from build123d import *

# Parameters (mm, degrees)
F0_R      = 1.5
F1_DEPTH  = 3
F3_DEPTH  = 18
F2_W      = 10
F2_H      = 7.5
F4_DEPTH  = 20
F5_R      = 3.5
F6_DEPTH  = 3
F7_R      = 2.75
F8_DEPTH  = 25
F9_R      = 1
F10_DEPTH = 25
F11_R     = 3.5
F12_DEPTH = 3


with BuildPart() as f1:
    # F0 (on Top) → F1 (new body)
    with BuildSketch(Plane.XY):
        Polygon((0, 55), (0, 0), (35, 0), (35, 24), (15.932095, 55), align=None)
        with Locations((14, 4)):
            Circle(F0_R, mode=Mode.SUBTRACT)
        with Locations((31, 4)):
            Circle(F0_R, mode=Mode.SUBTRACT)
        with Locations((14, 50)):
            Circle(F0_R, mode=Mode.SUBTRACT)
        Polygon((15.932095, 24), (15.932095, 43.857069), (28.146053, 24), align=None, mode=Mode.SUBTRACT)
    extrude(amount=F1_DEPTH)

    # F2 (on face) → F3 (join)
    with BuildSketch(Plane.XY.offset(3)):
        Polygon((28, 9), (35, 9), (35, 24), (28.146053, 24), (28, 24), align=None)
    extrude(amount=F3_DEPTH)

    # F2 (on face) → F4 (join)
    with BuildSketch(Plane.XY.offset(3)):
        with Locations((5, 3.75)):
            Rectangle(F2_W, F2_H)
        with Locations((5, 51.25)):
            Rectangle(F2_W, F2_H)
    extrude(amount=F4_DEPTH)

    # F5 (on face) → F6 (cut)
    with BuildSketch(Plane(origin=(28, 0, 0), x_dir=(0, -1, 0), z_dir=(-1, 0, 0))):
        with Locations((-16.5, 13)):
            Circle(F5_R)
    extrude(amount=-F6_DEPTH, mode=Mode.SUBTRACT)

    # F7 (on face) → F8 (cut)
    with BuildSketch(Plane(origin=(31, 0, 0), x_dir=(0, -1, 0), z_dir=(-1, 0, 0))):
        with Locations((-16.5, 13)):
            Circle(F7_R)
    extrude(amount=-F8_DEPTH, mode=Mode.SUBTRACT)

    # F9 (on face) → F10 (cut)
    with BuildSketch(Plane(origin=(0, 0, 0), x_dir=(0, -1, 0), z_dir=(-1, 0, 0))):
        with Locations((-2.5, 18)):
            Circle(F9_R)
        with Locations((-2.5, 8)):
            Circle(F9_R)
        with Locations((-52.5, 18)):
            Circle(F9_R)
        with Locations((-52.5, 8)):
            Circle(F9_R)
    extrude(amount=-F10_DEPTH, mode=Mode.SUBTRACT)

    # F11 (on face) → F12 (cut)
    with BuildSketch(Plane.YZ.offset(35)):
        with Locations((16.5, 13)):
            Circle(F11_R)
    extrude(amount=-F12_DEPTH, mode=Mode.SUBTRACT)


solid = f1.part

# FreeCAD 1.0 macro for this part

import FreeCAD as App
import Part
import Sketcher
from FreeCAD import Vector

doc = App.newDocument("Part")
body = doc.addObject("PartDesign::Body", "Body")

# Sketch on XY plane
sketch1 = doc.addObject("Sketcher::SketchObject", "Sketch")
body.addObject(sketch1)
sketch1.AttachmentSupport = (doc.XY_Plane, [""])
sketch1.MapMode = "FlatFace"
sketch1.addGeometry([
    Part.LineSegment(Vector(0, 55, 0), Vector(0, 0, 0)),  # 0
    Part.LineSegment(Vector(0, 0, 0), Vector(35, 0, 0)),  # 1
    Part.LineSegment(Vector(35, 0, 0), Vector(35, 24, 0)),  # 2
    Part.LineSegment(Vector(35, 24, 0), Vector(15.932095, 55, 0)),  # 3
    Part.LineSegment(Vector(15.932095, 55, 0), Vector(0, 55, 0)),  # 4
    Part.Circle(Vector(14, 4, 0), Vector(0, 0, 1), 1.5),  # 5
    Part.Circle(Vector(31, 4, 0), Vector(0, 0, 1), 1.5),  # 6
    Part.LineSegment(Vector(28.146053, 24, 0), Vector(15.932095, 24, 0)),  # 7
    Part.LineSegment(Vector(15.932095, 24, 0), Vector(15.932095, 43.857069, 0)),  # 8
    Part.LineSegment(Vector(15.932095, 43.857069, 0), Vector(28.146053, 24, 0)),  # 9
    Part.Circle(Vector(14, 50, 0), Vector(0, 0, 1), 1.5),  # 10
], False)
sketch1.addConstraint([
    Sketcher.Constraint("Coincident", 0, 2, 1, 1),
    Sketcher.Constraint("Coincident", 1, 2, 2, 1),
    Sketcher.Constraint("Coincident", 2, 2, 3, 1),
    Sketcher.Constraint("Coincident", 3, 2, 4, 1),
    Sketcher.Constraint("Coincident", 4, 2, 0, 1),
    Sketcher.Constraint("Coincident", 7, 2, 8, 1),
    Sketcher.Constraint("Coincident", 8, 2, 9, 1),
    Sketcher.Constraint("Coincident", 9, 2, 7, 1),
    Sketcher.Constraint("Vertical", 0),
    Sketcher.Constraint("Horizontal", 1),
    Sketcher.Constraint("Vertical", 2),
    Sketcher.Constraint("Horizontal", 4),
    Sketcher.Constraint("Horizontal", 7),
    Sketcher.Constraint("Vertical", 8),
    Sketcher.Constraint("Coincident", 0, 2, -1, 1),
    Sketcher.Constraint("Equal", 5, 6),
    Sketcher.Constraint("Equal", 6, 10),
    Sketcher.Constraint("Parallel", 3, 9),
    Sketcher.Constraint("Horizontal", 5, 3, 6, 3),
    Sketcher.Constraint("Horizontal", 2, 2, 7, 2),
    Sketcher.Constraint("Vertical", 5, 3, 10, 3),
    Sketcher.Constraint("Vertical", 3, 2, 7, 2),
    Sketcher.Constraint("Diameter", 5, 3.0),
    Sketcher.Constraint("DistanceX", 1, 1, 1, 2, 35.0),
    Sketcher.Constraint("DistanceY", 0, 2, 0, 1, 55.0),
    Sketcher.Constraint("DistanceY", 2, 1, 2, 2, 24.0),
    Sketcher.Constraint("DistanceX", -1, 1, 5, 3, 14.0),
    Sketcher.Constraint("DistanceY", -1, 1, 5, 3, 4.0),
    Sketcher.Constraint("DistanceX", -1, 1, 6, 3, 31.0),
    Sketcher.Constraint("DistanceY", -1, 1, 10, 3, 50.0),
    Sketcher.Constraint("DistanceY", 8, 1, 8, 2, 19.857069),
    Sketcher.Constraint("Distance", 3, 36.394849),
])
pad1 = doc.addObject("PartDesign::Pad", "Pad")
body.addObject(pad1)
pad1.Profile = sketch1
pad1.Length = 3

# Sketch on XY plane
sketch2 = doc.addObject("Sketcher::SketchObject", "Sketch001")
body.addObject(sketch2)
sketch2.AttachmentSupport = (doc.XY_Plane, [""])
sketch2.MapMode = "FlatFace"
sketch2.AttachmentOffset = App.Placement(Vector(0, 0, 3), App.Rotation())
sketch2.addGeometry([
    Part.LineSegment(Vector(28, 9, 0), Vector(35, 9, 0)),
    Part.LineSegment(Vector(35, 9, 0), Vector(35, 24, 0)),
    Part.LineSegment(Vector(35, 24, 0), Vector(28, 24, 0)),
    Part.LineSegment(Vector(28, 24, 0), Vector(28, 9, 0)),
], False)
sketch2.addConstraint([
    Sketcher.Constraint("Coincident", 0, 2, 1, 1),
    Sketcher.Constraint("Coincident", 1, 2, 2, 1),
    Sketcher.Constraint("Coincident", 2, 2, 3, 1),
    Sketcher.Constraint("Coincident", 3, 2, 0, 1),
    Sketcher.Constraint("Horizontal", 0),
    Sketcher.Constraint("Vertical", 1),
    Sketcher.Constraint("Horizontal", 2),
    Sketcher.Constraint("Vertical", 3),
    Sketcher.Constraint("DistanceX", 0, 1, 0, 2, 7.0),
    Sketcher.Constraint("DistanceY", 1, 1, 1, 2, 15.0),
    Sketcher.Constraint("DistanceX", -1, 1, 0, 2, 35.0),
    Sketcher.Constraint("DistanceY", -1, 1, 0, 2, 9.0),
])
pad2 = doc.addObject("PartDesign::Pad", "Pad001")
body.addObject(pad2)
pad2.Profile = sketch2
pad2.Length = 18

# Sketch on XY plane
sketch3 = doc.addObject("Sketcher::SketchObject", "Sketch002")
body.addObject(sketch3)
sketch3.AttachmentSupport = (doc.XY_Plane, [""])
sketch3.MapMode = "FlatFace"
sketch3.AttachmentOffset = App.Placement(Vector(0, 0, 3), App.Rotation())
sketch3.addGeometry([
    Part.LineSegment(Vector(0, 7.5, 0), Vector(0, 0, 0)),  # 0
    Part.LineSegment(Vector(0, 0, 0), Vector(10, 0, 0)),  # 1
    Part.LineSegment(Vector(10, 0, 0), Vector(10, 7.5, 0)),  # 2
    Part.LineSegment(Vector(10, 7.5, 0), Vector(0, 7.5, 0)),  # 3
    Part.LineSegment(Vector(0, 55, 0), Vector(0, 47.5, 0)),  # 4
    Part.LineSegment(Vector(0, 47.5, 0), Vector(10, 47.5, 0)),  # 5
    Part.LineSegment(Vector(10, 47.5, 0), Vector(10, 55, 0)),  # 6
    Part.LineSegment(Vector(10, 55, 0), Vector(0, 55, 0)),  # 7
], False)
sketch3.addConstraint([
    Sketcher.Constraint("Coincident", 0, 2, 1, 1),
    Sketcher.Constraint("Coincident", 1, 2, 2, 1),
    Sketcher.Constraint("Coincident", 2, 2, 3, 1),
    Sketcher.Constraint("Coincident", 3, 2, 0, 1),
    Sketcher.Constraint("Coincident", 4, 2, 5, 1),
    Sketcher.Constraint("Coincident", 5, 2, 6, 1),
    Sketcher.Constraint("Coincident", 6, 2, 7, 1),
    Sketcher.Constraint("Coincident", 7, 2, 4, 1),
    Sketcher.Constraint("Vertical", 0),
    Sketcher.Constraint("Horizontal", 1),
    Sketcher.Constraint("Vertical", 2),
    Sketcher.Constraint("Horizontal", 3),
    Sketcher.Constraint("Vertical", 4),
    Sketcher.Constraint("Horizontal", 5),
    Sketcher.Constraint("Vertical", 6),
    Sketcher.Constraint("Horizontal", 7),
    Sketcher.Constraint("Coincident", 0, 2, -1, 1),
    Sketcher.Constraint("PointOnObject", 4, 2, -2),
    Sketcher.Constraint("Vertical", 2, 2, 5, 2),
    Sketcher.Constraint("Equal", 2, 4),
    Sketcher.Constraint("DistanceX", 1, 1, 1, 2, 10.0),
    Sketcher.Constraint("DistanceY", 0, 2, 0, 1, 7.5),
    Sketcher.Constraint("DistanceY", -1, 1, 6, 2, 55.0),
])
pad3 = doc.addObject("PartDesign::Pad", "Pad002")
body.addObject(pad3)
pad3.Profile = sketch3
pad3.Length = 20

# Sketch on YZ plane
sketch4 = doc.addObject("Sketcher::SketchObject", "Sketch003")
body.addObject(sketch4)
sketch4.AttachmentSupport = (doc.YZ_Plane, [""])
sketch4.MapMode = "FlatFace"
sketch4.AttachmentOffset = App.Placement(Vector(0, 0, 28), App.Rotation())
sketch4.addGeometry(Part.Circle(Vector(16.5, 13, 0), Vector(0, 0, 1), 3.5), False)
sketch4.addConstraint([
    Sketcher.Constraint("Diameter", 0, 7.0),
    Sketcher.Constraint("DistanceY", -1, 1, 0, 3, 13.0),
    Sketcher.Constraint("DistanceX", -1, 1, 0, 3, 16.5),
])
pocket1 = doc.addObject("PartDesign::Pocket", "Pocket")
body.addObject(pocket1)
pocket1.Profile = sketch4
pocket1.Length = 3
pocket1.Reversed = True

# Sketch on YZ plane
sketch5 = doc.addObject("Sketcher::SketchObject", "Sketch004")
body.addObject(sketch5)
sketch5.AttachmentSupport = (doc.YZ_Plane, [""])
sketch5.MapMode = "FlatFace"
sketch5.AttachmentOffset = App.Placement(Vector(0, 0, 31), App.Rotation())
sketch5.addGeometry(Part.Circle(Vector(16.5, 13, 0), Vector(0, 0, 1), 2.75), False)
sketch5.addConstraint([
    Sketcher.Constraint("Diameter", 0, 5.5),
    Sketcher.Constraint("DistanceY", -1, 1, 0, 3, 13.0),
    Sketcher.Constraint("DistanceX", -1, 1, 0, 3, 16.5),
])
pocket2 = doc.addObject("PartDesign::Pocket", "Pocket001")
body.addObject(pocket2)
pocket2.Profile = sketch5
pocket2.Length = 25
pocket2.Reversed = True

# Sketch on YZ plane
sketch6 = doc.addObject("Sketcher::SketchObject", "Sketch005")
body.addObject(sketch6)
sketch6.AttachmentSupport = (doc.YZ_Plane, [""])
sketch6.MapMode = "FlatFace"
sketch6.addGeometry([
    Part.Circle(Vector(2.5, 18, 0), Vector(0, 0, 1), 1),
    Part.Circle(Vector(2.5, 8, 0), Vector(0, 0, 1), 1),
    Part.Circle(Vector(52.5, 18, 0), Vector(0, 0, 1), 1),
    Part.Circle(Vector(52.5, 8, 0), Vector(0, 0, 1), 1),
], False)
sketch6.addConstraint([
    Sketcher.Constraint("Equal", 0, 1),
    Sketcher.Constraint("Equal", 1, 2),
    Sketcher.Constraint("Equal", 2, 3),
    Sketcher.Constraint("Horizontal", 0, 3, 2, 3),
    Sketcher.Constraint("Horizontal", 1, 3, 3, 3),
    Sketcher.Constraint("Vertical", 0, 3, 1, 3),
    Sketcher.Constraint("Vertical", 2, 3, 3, 3),
    Sketcher.Constraint("Diameter", 0, 2.0),
    Sketcher.Constraint("DistanceY", -1, 1, 0, 3, 18.0),
    Sketcher.Constraint("DistanceY", -1, 1, 1, 3, 8.0),
    Sketcher.Constraint("DistanceX", 0, 3, 2, 3, 50.0),
    Sketcher.Constraint("DistanceX", -1, 1, 0, 3, 2.5),
])
pocket3 = doc.addObject("PartDesign::Pocket", "Pocket002")
body.addObject(pocket3)
pocket3.Profile = sketch6
pocket3.Length = 25
pocket3.Reversed = True

# Sketch on YZ plane
sketch7 = doc.addObject("Sketcher::SketchObject", "Sketch006")
body.addObject(sketch7)
sketch7.AttachmentSupport = (doc.YZ_Plane, [""])
sketch7.MapMode = "FlatFace"
sketch7.AttachmentOffset = App.Placement(Vector(0, 0, 35), App.Rotation())
sketch7.addGeometry(Part.Circle(Vector(16.5, 13, 0), Vector(0, 0, 1), 3.5), False)
sketch7.addConstraint([
    Sketcher.Constraint("Diameter", 0, 7.0),
    Sketcher.Constraint("DistanceY", -1, 1, 0, 3, 13.0),
    Sketcher.Constraint("DistanceX", -1, 1, 0, 3, 16.5),
])
pocket4 = doc.addObject("PartDesign::Pocket", "Pocket003")
body.addObject(pocket4)
pocket4.Profile = sketch7
pocket4.Length = 3

doc.recompute()
